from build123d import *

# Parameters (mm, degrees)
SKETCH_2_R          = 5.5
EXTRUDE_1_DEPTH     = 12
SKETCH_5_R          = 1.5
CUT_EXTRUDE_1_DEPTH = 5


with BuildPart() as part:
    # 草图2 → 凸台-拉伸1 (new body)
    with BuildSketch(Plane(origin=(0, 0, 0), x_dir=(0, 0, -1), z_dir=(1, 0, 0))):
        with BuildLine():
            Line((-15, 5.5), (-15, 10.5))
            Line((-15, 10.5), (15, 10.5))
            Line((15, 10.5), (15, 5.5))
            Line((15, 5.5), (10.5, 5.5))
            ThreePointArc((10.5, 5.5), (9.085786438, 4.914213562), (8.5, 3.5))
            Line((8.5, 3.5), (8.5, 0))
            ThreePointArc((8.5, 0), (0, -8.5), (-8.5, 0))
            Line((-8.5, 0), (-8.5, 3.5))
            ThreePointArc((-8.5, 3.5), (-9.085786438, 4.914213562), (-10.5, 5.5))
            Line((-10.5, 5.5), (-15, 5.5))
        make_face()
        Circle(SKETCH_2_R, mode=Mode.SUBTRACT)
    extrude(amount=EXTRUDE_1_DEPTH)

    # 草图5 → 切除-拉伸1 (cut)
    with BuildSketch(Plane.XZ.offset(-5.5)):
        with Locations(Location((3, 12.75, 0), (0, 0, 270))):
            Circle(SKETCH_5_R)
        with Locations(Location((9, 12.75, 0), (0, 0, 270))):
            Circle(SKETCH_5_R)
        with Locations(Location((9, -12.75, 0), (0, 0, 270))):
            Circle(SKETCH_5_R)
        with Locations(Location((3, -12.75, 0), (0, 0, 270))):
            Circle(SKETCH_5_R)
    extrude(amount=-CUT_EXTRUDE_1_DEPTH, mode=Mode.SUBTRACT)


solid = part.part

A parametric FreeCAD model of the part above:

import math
import FreeCAD as App
import Part
import Sketcher
Q = App.Units.Quantity

doc = App.newDocument("Part")
body = doc.addObject("PartDesign::Body", "Body")

# Sketch on YZ plane
sketch1 = body.newObject("Sketcher::SketchObject", "Sketch")
sketch1.AttachmentSupport = (doc.getObject("YZ_Plane"), [""])
sketch1.MapMode = "FlatFace"
sketch1.addGeometry([
    Part.LineSegment(App.Vector(10.5, 15, 0), App.Vector(5.5, 15, 0)),  # 0
    Part.LineSegment(App.Vector(5.5, 15, 0), App.Vector(5.5, 10.5, 0)),  # 1
    Part.ArcOfCircle(Part.Circle(App.Vector(3.5, 10.5, 0), App.Vector(0, 0, 1), 2), math.radians(-90), math.radians(0)),  # 2
    Part.LineSegment(App.Vector(3.5, 8.5, 0), App.Vector(0, 8.5, 0)),  # 3
    Part.ArcOfCircle(Part.Circle(App.Vector(0, 0, 0), App.Vector(0, 0, 1), 8.5), math.radians(90), math.radians(270)),  # 4
    Part.LineSegment(App.Vector(0, -8.5, 0), App.Vector(3.5, -8.5, 0)),  # 5
    Part.ArcOfCircle(Part.Circle(App.Vector(3.5, -10.5, 0), App.Vector(0, 0, 1), 2), math.radians(0), math.radians(90)),  # 6
    Part.LineSegment(App.Vector(5.5, -10.5, 0), App.Vector(5.5, -15, 0)),  # 7
    Part.LineSegment(App.Vector(5.5, -15, 0), App.Vector(10.5, -15, 0)),  # 8
    Part.LineSegment(App.Vector(10.5, -15, 0), App.Vector(10.5, 15, 0)),  # 9
    Part.Circle(App.Vector(0, 0, 0), App.Vector(0, 0, 1), 5.5),  # 10
], False)
sketch1.addConstraint([
    Sketcher.Constraint("Coincident", 0, 2, 1, 1),
    Sketcher.Constraint("Tangent", 1, 2, 2, 2),
    Sketcher.Constraint("Tangent", 2, 1, 3, 1),
    Sketcher.Constraint("Tangent", 3, 2, 4, 1),
    Sketcher.Constraint("Tangent", 4, 2, 5, 1),
    Sketcher.Constraint("Tangent", 5, 2, 6, 2),
    Sketcher.Constraint("Tangent", 6, 1, 7, 1),
    Sketcher.Constraint("Coincident", 7, 2, 8, 1),
    Sketcher.Constraint("Coincident", 8, 2, 9, 1),
    Sketcher.Constraint("Coincident", 9, 2, 0, 1),
    Sketcher.Constraint("Horizontal", 0),
    Sketcher.Constraint("Vertical", 1),
    Sketcher.Constraint("Horizontal", 3),
    Sketcher.Constraint("Horizontal", 5),
    Sketcher.Constraint("Vertical", 7),
    Sketcher.Constraint("Horizontal", 8),
    Sketcher.Constraint("Vertical", 9),
    Sketcher.Constraint("Coincident", 4, 3, -1, 1),
    Sketcher.Constraint("Coincident", 10, 3, -1, 1),
    Sketcher.Constraint("Equal", 2, 6),
    Sketcher.Constraint("Symmetric", 0, 2, 7, 2, -1),
    Sketcher.Constraint("Diameter", 10, Q("11 mm")),
    Sketcher.Constraint("Radius", 2, Q("2 mm")),
    Sketcher.Constraint("Radius", 4, Q("8.5 mm")),
    Sketcher.Constraint("DistanceX", 0, 2, 0, 1, Q("5 mm")),
    Sketcher.Constraint("DistanceY", 9, 1, 9, 2, Q("30 mm")),
    Sketcher.Constraint("DistanceX", 3, 2, 3, 1, Q("3.5 mm")),
])
pad1 = body.newObject("PartDesign::Pad", "Pad")
pad1.Profile = sketch1
pad1.Length = 12

# Sketch on XZ plane
sketch2 = body.newObject("Sketcher::SketchObject", "Sketch001")
sketch2.AttachmentSupport = (doc.getObject("XZ_Plane"), [""])
sketch2.MapMode = "FlatFace"
sketch2.AttachmentOffset = App.Placement(App.Vector(0, 0, -5.5), App.Rotation())
sketch2.addGeometry([
    Part.Circle(App.Vector(3, 12.75, 0), App.Vector(0, 0, 1), 1.5),
    Part.Circle(App.Vector(9, 12.75, 0), App.Vector(0, 0, 1), 1.5),
    Part.Circle(App.Vector(9, -12.75, 0), App.Vector(0, 0, 1), 1.5),
    Part.Circle(App.Vector(3, -12.75, 0), App.Vector(0, 0, 1), 1.5),
], False)
sketch2.addConstraint([
    Sketcher.Constraint("Equal", 0, 1),
    Sketcher.Constraint("Equal", 1, 2),
    Sketcher.Constraint("Equal", 2, 3),
    Sketcher.Constraint("Symmetric", 1, 3, 2, 3, -1),
    Sketcher.Constraint("Symmetric", 0, 3, 3, 3, -1),
    Sketcher.Constraint("Horizontal", 0, 3, 1, 3),
    Sketcher.Constraint("Diameter", 0, Q("3 mm")),
    Sketcher.Constraint("DistanceX", -1, 1, 0, 3, Q("3 mm")),
    Sketcher.Constraint("DistanceX", -1, 1, 1, 3, Q("9 mm")),
    Sketcher.Constraint("DistanceY", 2, 3, 1, 3, Q("25.5 mm")),
])
pocket1 = body.newObject("PartDesign::Pocket", "Pocket")
pocket1.Profile = sketch2
pocket1.Length = 5

doc.recompute()
